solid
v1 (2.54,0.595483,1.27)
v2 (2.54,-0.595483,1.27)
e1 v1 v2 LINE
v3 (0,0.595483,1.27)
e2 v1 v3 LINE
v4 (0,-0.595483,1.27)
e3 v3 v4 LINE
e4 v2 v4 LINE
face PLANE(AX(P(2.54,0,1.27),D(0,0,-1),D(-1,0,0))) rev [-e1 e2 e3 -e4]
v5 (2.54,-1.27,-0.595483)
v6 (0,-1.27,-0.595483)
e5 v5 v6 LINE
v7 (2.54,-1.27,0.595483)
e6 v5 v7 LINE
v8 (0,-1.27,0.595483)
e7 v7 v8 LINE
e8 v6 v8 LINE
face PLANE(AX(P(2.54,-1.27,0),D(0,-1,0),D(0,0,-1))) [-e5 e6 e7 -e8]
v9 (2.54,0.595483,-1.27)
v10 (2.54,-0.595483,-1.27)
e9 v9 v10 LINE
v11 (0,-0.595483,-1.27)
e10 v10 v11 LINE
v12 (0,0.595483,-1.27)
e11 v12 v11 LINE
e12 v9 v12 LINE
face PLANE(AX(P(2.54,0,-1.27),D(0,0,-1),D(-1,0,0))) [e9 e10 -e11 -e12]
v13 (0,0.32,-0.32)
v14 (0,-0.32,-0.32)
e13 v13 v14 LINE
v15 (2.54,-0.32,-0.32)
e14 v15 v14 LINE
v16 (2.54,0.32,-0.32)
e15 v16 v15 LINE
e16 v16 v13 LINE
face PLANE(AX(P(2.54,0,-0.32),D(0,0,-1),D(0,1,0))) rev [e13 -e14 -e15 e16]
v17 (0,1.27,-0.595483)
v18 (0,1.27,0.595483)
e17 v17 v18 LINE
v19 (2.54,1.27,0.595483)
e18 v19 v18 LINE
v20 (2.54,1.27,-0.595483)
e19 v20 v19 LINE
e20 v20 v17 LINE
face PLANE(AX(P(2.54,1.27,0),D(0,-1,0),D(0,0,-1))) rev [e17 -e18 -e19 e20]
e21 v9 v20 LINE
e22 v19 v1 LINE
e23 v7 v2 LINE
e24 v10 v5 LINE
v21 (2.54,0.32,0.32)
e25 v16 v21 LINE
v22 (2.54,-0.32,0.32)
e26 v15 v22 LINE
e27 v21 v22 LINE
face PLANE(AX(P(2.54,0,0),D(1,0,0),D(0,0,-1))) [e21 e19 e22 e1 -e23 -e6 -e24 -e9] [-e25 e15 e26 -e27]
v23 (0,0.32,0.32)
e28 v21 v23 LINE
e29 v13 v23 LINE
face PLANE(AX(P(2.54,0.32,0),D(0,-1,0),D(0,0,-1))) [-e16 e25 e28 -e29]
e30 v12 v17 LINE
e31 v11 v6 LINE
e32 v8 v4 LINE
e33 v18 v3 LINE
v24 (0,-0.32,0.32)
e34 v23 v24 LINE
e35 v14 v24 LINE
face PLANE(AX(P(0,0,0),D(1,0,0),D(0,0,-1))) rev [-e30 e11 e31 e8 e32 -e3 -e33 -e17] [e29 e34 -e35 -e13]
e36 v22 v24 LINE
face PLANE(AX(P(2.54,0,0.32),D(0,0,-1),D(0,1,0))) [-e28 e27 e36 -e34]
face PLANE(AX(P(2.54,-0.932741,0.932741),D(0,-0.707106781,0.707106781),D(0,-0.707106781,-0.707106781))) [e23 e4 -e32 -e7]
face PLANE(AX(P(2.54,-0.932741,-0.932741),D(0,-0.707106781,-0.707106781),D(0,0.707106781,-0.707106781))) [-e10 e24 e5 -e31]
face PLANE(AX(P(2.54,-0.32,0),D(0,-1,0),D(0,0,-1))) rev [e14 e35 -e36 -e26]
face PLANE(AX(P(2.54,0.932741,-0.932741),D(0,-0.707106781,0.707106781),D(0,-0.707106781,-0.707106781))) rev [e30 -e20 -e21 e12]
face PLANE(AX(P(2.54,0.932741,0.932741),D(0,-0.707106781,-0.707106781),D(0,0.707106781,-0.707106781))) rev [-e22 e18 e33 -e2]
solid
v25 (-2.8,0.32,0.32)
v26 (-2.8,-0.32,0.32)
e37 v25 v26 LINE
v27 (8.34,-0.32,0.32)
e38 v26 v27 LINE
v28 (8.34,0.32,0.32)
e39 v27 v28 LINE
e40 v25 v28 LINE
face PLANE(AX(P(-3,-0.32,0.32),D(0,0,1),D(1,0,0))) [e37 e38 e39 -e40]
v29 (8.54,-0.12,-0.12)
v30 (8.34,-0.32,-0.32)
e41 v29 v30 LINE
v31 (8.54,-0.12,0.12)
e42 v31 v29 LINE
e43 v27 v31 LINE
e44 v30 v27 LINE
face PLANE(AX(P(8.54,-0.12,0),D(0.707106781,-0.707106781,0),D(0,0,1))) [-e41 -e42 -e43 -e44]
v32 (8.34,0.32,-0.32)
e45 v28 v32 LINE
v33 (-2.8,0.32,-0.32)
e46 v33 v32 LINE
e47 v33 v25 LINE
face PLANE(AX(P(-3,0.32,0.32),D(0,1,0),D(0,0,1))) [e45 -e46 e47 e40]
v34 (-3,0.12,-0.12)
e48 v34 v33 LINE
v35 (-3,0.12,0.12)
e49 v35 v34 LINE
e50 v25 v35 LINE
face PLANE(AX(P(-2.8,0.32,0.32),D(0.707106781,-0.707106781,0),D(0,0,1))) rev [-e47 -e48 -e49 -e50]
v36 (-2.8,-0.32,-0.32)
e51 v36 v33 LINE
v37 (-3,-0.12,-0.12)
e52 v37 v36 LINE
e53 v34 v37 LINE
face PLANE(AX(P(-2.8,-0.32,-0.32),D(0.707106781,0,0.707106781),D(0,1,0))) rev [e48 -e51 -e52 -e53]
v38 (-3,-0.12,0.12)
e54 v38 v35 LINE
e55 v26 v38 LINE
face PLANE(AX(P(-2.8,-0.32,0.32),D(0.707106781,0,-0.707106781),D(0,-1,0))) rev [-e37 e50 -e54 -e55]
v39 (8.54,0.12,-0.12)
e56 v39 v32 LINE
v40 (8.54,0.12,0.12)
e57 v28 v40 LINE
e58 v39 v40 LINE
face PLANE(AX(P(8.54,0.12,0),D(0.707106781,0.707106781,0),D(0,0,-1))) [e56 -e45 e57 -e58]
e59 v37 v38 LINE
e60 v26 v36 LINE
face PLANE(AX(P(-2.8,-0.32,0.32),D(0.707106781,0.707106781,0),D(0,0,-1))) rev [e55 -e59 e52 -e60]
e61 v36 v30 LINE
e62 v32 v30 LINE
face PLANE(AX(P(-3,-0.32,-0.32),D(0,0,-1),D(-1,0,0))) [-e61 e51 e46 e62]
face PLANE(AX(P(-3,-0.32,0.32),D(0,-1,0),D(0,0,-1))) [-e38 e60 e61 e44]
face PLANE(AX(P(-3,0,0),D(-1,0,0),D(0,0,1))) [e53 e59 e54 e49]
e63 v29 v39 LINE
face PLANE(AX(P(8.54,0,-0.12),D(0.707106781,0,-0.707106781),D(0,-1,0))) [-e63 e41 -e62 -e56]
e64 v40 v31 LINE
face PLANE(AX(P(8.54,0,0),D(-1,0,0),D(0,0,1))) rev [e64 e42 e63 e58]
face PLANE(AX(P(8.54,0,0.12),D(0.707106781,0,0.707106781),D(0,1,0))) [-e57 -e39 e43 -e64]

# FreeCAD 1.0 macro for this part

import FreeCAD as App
import Part
import Sketcher

V = App.Vector


def edges_at(feature, points):
    """Names of the edges that pass closest to the given points."""
    edges = feature.Shape.Edges
    near = lambda p: min(range(len(edges)), key=lambda i: edges[i].distToShape(Part.Vertex(*p))[0])
    return sorted({f"Edge{near(p) + 1}" for p in points})


def add_polygon(sketch, points):
    """Adds a closed chain of lines whose ends are joined by coincident constraints."""
    first, n = sketch.GeometryCount, len(points)
    for a, b in zip(points, points[1:] + points[:1]):
        sketch.addGeometry(Part.LineSegment(App.Vector(*a, 0), App.Vector(*b, 0)), False)
    for i in range(n):
        sketch.addConstraint(Sketcher.Constraint("Coincident", first + i, 2, first + (i + 1) % n, 1))

doc = App.newDocument("Part")
params = doc.addObject("Spreadsheet::Sheet", "Params")
for row, (alias, value) in enumerate([
    ("sketch1_width", "0.64 mm"),
    ("pad1_length", "2.54 mm"),
    ("sketch2_width", "0.64 mm"),
    ("pad2_length", "8.54 mm"),
    ("pad2_length2", "3 mm"),
    ("chamfer_size", "0.2 mm"),
], start=1):
    params.set(f"A{row}", alias)
    params.set(f"B{row}", "=" + value)
    params.setAlias(f"B{row}", alias)

body = doc.addObject("PartDesign::Body", "Body")

sketch1 = doc.addObject("Sketcher::SketchObject", "Sketch")
body.addObject(sketch1)
sketch1.AttachmentSupport = (doc.YZ_Plane, [""])
sketch1.MapMode = "FlatFace"
add_polygon(sketch1, [(1.3, 0.6), (0.6, 1.3), (-0.6, 1.3), (-1.3, 0.6), (-1.3, -0.6), (-0.6, -1.3), (0.6, -1.3), (1.3, -0.6)])
add_polygon(sketch1, [(-0.3, -0.3), (-0.3, 0.3), (0.3, 0.3), (0.3, -0.3)])
sketch1.addConstraint(Sketcher.Constraint("Horizontal", 1))
sketch1.addConstraint(Sketcher.Constraint("Vertical", 3))
sketch1.addConstraint(Sketcher.Constraint("Horizontal", 5))
sketch1.addConstraint(Sketcher.Constraint("Vertical", 7))
sketch1.addConstraint(Sketcher.Constraint("Vertical", 8))
sketch1.addConstraint(Sketcher.Constraint("Horizontal", 9))
sketch1.addConstraint(Sketcher.Constraint("Vertical", 10))
sketch1.addConstraint(Sketcher.Constraint("Horizontal", 11))
sketch1.addConstraint(Sketcher.Constraint("Symmetric", 0, 2, 4, 2, -1, 1))
sketch1.addConstraint(Sketcher.Constraint("Symmetric", 2, 2, 6, 2, -1, 1))
sketch1.addConstraint(Sketcher.Constraint("Symmetric", 8, 2, 10, 2, -1, 1))
sketch1.addConstraint(Sketcher.Constraint("Perpendicular", 0, 2))
sketch1.addConstraint(Sketcher.Constraint("Perpendicular", 2, 4))
sketch1.addConstraint(Sketcher.Constraint("Perpendicular", 4, 6))
sketch1.addConstraint(Sketcher.Constraint("Horizontal", 3, 2, 6, 2))
sketch1.addConstraint(Sketcher.Constraint("Vertical", 1, 2, 4, 2))
sketch1.addConstraint(Sketcher.Constraint("Equal", 5, 3))
sketch1.addConstraint(Sketcher.Constraint("Equal", 11, 8))
sketch1.addConstraint(Sketcher.Constraint("DistanceX", 9, 1, 9, 2, 0.64))
sketch1.addConstraint(Sketcher.Constraint("DistanceY", -1, 1, 0, 2, 1.27))
sketch1.addConstraint(Sketcher.Constraint("Distance", 0, 0.953912))
sketch1.setExpression("Constraints[30]", "Params.sketch1_width")
pad1 = doc.addObject("PartDesign::Pad", "Pad")
body.addObject(pad1)
pad1.Profile = sketch1
pad1.setExpression("Length", "Params.pad1_length")
body2 = doc.addObject("PartDesign::Body", "Body001")

sketch2 = doc.addObject("Sketcher::SketchObject", "Sketch001")
body2.addObject(sketch2)
sketch2.AttachmentSupport = (doc.getObject("YZ_Plane001"), [""])
sketch2.MapMode = "FlatFace"
add_polygon(sketch2, [(0.3, 0.3), (-0.3, 0.3), (-0.3, -0.3), (0.3, -0.3)])
sketch2.addConstraint(Sketcher.Constraint("Horizontal", 0))
sketch2.addConstraint(Sketcher.Constraint("Vertical", 1))
sketch2.addConstraint(Sketcher.Constraint("Horizontal", 2))
sketch2.addConstraint(Sketcher.Constraint("Vertical", 3))
sketch2.addConstraint(Sketcher.Constraint("Symmetric", 0, 2, 2, 2, -1, 1))
sketch2.addConstraint(Sketcher.Constraint("Equal", 2, 1))
sketch2.addConstraint(Sketcher.Constraint("DistanceX", 0, 2, 0, 1, 0.64))
sketch2.setExpression("Constraints[10]", "Params.sketch2_width")
pad2 = doc.addObject("PartDesign::Pad", "Pad001")
body2.addObject(pad2)
pad2.Profile = sketch2
pad2.Type = "TwoLengths"
pad2.setExpression("Length", "Params.pad2_length")
pad2.setExpression("Length2", "Params.pad2_length2")
doc.recompute()

chamfer = doc.addObject("PartDesign::Chamfer", "Chamfer")
body2.addObject(chamfer)
chamfer.Base = (pad2, edges_at(pad2, [
    (-3, 0, -0.32),
    (8.54, 0, 0.32),
    (8.54, -0.32, 0),
    (-3, 0.32, 0),
    (8.54, 0, -0.32),
    (8.54, 0.32, 0),
    (-3, 0, 0.32),
    (-3, -0.32, 0),
]))
chamfer.setExpression("Size", "Params.chamfer_size")

doc.recompute()
